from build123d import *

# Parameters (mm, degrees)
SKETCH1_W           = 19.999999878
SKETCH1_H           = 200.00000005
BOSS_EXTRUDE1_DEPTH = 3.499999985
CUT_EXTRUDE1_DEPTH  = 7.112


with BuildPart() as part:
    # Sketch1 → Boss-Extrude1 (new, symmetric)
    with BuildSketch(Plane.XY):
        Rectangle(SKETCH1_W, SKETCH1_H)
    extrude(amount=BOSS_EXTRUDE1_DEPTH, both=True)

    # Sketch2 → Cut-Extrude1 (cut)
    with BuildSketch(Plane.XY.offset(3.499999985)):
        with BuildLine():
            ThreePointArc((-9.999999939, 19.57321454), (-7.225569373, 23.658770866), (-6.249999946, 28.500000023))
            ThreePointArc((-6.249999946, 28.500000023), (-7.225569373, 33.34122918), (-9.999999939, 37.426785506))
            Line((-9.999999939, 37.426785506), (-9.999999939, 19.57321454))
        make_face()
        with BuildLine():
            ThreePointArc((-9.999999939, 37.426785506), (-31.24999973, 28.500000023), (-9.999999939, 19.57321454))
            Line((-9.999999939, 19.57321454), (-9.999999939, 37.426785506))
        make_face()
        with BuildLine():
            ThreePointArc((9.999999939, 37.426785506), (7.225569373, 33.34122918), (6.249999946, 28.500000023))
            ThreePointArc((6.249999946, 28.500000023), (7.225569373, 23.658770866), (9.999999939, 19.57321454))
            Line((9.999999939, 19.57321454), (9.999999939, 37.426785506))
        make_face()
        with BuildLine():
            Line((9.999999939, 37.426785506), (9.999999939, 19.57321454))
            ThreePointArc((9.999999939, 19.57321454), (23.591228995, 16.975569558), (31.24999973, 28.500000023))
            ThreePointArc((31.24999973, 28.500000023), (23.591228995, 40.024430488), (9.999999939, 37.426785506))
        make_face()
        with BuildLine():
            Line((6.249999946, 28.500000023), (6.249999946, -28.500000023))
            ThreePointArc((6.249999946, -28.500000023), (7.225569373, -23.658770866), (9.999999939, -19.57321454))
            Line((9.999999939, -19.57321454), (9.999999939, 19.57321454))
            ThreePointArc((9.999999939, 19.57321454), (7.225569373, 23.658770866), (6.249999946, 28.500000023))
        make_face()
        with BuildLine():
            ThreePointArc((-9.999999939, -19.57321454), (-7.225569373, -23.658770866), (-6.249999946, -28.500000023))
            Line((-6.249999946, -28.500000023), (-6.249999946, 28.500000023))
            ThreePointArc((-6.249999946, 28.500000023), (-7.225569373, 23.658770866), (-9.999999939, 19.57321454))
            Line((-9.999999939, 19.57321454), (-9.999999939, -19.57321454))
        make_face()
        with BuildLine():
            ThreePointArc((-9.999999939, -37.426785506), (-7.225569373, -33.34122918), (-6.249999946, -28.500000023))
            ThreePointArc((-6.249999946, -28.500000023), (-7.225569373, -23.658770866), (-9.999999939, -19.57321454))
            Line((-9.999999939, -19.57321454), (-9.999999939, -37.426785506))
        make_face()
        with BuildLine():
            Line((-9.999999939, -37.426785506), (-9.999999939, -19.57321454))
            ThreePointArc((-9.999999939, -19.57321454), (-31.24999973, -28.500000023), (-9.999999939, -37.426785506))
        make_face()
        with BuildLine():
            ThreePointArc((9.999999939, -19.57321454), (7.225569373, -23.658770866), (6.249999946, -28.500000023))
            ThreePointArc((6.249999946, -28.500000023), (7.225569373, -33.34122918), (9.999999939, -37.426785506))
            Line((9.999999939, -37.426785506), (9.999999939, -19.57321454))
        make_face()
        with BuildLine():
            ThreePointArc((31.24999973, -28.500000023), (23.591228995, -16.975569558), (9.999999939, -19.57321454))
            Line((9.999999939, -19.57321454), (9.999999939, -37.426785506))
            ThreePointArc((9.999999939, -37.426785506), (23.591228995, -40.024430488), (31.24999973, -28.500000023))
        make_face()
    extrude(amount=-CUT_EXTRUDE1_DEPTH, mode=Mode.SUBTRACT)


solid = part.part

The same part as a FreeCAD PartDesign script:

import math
import FreeCAD as App
import Part
import Sketcher
Q = App.Units.Quantity

doc = App.newDocument("Part")
params = doc.addObject("Spreadsheet::Sheet", "Params")
for row, (alias, value) in enumerate([
    ("sketch1_width", "20 mm"),
    ("sketch1_height", "200 mm"),
    ("pad1_length", "7 mm"),
    ("sketch2_radius", "12.5 mm"),
    ("sketch2_height", "57 mm"),
    ("pocket1_length", "7.112 mm"),
], start=1):
    params.set(f"A{row}", alias)
    params.set(f"B{row}", "=" + value)
    params.setAlias(f"B{row}", alias)

body = doc.addObject("PartDesign::Body", "Body")

sketch1 = body.newObject("Sketcher::SketchObject", "Sketch")
sketch1.AttachmentSupport = (doc.getObject("XY_Plane"), [""])
sketch1.MapMode = "FlatFace"
sketch1.addGeometry(Part.LineSegment(App.Vector(-10, 100, 0), App.Vector(-10, -100, 0)), False)
sketch1.addGeometry(Part.LineSegment(App.Vector(-10, -100, 0), App.Vector(10, -100, 0)), False)
sketch1.addGeometry(Part.LineSegment(App.Vector(10, -100, 0), App.Vector(10, 100, 0)), False)
sketch1.addGeometry(Part.LineSegment(App.Vector(10, 100, 0), App.Vector(-10, 100, 0)), False)
sketch1.addConstraint(Sketcher.Constraint("Coincident", 0, 2, 1, 1))
sketch1.addConstraint(Sketcher.Constraint("Coincident", 1, 2, 2, 1))
sketch1.addConstraint(Sketcher.Constraint("Coincident", 2, 2, 3, 1))
sketch1.addConstraint(Sketcher.Constraint("Coincident", 3, 2, 0, 1))
sketch1.addConstraint(Sketcher.Constraint("Vertical", 0))
sketch1.addConstraint(Sketcher.Constraint("Horizontal", 1))
sketch1.addConstraint(Sketcher.Constraint("Vertical", 2))
sketch1.addConstraint(Sketcher.Constraint("Horizontal", 3))
sketch1.addConstraint(Sketcher.Constraint("Symmetric", 0, 2, 2, 2, -1, 1))
sketch1.addConstraint(Sketcher.Constraint("DistanceX", 1, 1, 1, 2, Q("20 mm")))
sketch1.addConstraint(Sketcher.Constraint("DistanceY", 0, 2, 0, 1, Q("200 mm")))
sketch1.setExpression("Constraints[9]", "Params.sketch1_width")
sketch1.setExpression("Constraints[10]", "Params.sketch1_height")
pad1 = body.newObject("PartDesign::Pad", "Pad")
pad1.Profile = sketch1
pad1.setExpression("Length", "Params.pad1_length")
pad1.Midplane = True

sketch2 = body.newObject("Sketcher::SketchObject", "Sketch001")
sketch2.AttachmentSupport = (doc.getObject("XY_Plane"), [""])
sketch2.MapMode = "FlatFace"
sketch2.AttachmentOffset = App.Placement(App.Vector(0, 0, 3.5), App.Rotation())
sketch2.addGeometry(Part.ArcOfCircle(Part.Circle(App.Vector(-19, 29, 0), App.Vector(0, 0, 1), 12), math.radians(0), math.radians(46)), False)
sketch2.addGeometry(Part.ArcOfCircle(Part.Circle(App.Vector(-19, 29, 0), App.Vector(0, 0, 1), 12), math.radians(46), math.radians(314)), False)
sketch2.addGeometry(Part.LineSegment(App.Vector(-10, 20, 0), App.Vector(-10, -20, 0)), False)
sketch2.addGeometry(Part.ArcOfCircle(Part.Circle(App.Vector(-19, -29, 0), App.Vector(0, 0, 1), 12), math.radians(46), math.radians(314)), False)
sketch2.addGeometry(Part.ArcOfCircle(Part.Circle(App.Vector(-19, -29, 0), App.Vector(0, 0, 1), 12), math.radians(-46), math.radians(0)), False)
sketch2.addGeometry(Part.LineSegment(App.Vector(-6, -29, 0), App.Vector(-6, 29, 0)), False)
sketch2.addGeometry(Part.ArcOfCircle(Part.Circle(App.Vector(19, 29, 0), App.Vector(0, 0, 1), 12), math.radians(134), math.radians(180)), False)
sketch2.addGeometry(Part.LineSegment(App.Vector(6, 29, 0), App.Vector(6, -29, 0)), False)
sketch2.addGeometry(Part.ArcOfCircle(Part.Circle(App.Vector(19, -29, 0), App.Vector(0, 0, 1), 12), math.radians(-180), math.radians(-134)), False)
sketch2.addGeometry(Part.ArcOfCircle(Part.Circle(App.Vector(19, -29, 0), App.Vector(0, 0, 1), 12), math.radians(-134), math.radians(0)), False)
sketch2.addGeometry(Part.ArcOfCircle(Part.Circle(App.Vector(19, -29, 0), App.Vector(0, 0, 1), 12), math.radians(0), math.radians(134)), False)
sketch2.addGeometry(Part.LineSegment(App.Vector(10, -20, 0), App.Vector(10, 20, 0)), False)
sketch2.addGeometry(Part.ArcOfCircle(Part.Circle(App.Vector(19, 29, 0), App.Vector(0, 0, 1), 12), math.radians(-134), math.radians(0)), False)
sketch2.addGeometry(Part.ArcOfCircle(Part.Circle(App.Vector(19, 29, 0), App.Vector(0, 0, 1), 12), math.radians(0), math.radians(134)), False)
sketch2.addConstraint(Sketcher.Constraint("Tangent", 0, 2, 1, 1))
sketch2.addConstraint(Sketcher.Constraint("Coincident", 1, 2, 2, 1))
sketch2.addConstraint(Sketcher.Constraint("Coincident", 2, 2, 3, 1))
sketch2.addConstraint(Sketcher.Constraint("Tangent", 3, 2, 4, 1))
sketch2.addConstraint(Sketcher.Constraint("Tangent", 4, 2, 5, 1))
sketch2.addConstraint(Sketcher.Constraint("Tangent", 5, 2, 0, 1))
sketch2.addConstraint(Sketcher.Constraint("Tangent", 6, 2, 7, 1))
sketch2.addConstraint(Sketcher.Constraint("Tangent", 7, 2, 8, 1))
sketch2.addConstraint(Sketcher.Constraint("Tangent", 8, 2, 9, 1))
sketch2.addConstraint(Sketcher.Constraint("Tangent", 9, 2, 10, 1))
sketch2.addConstraint(Sketcher.Constraint("Coincident", 10, 2, 11, 1))
sketch2.addConstraint(Sketcher.Constraint("Coincident", 11, 2, 12, 1))
sketch2.addConstraint(Sketcher.Constraint("Tangent", 12, 2, 13, 1))
sketch2.addConstraint(Sketcher.Constraint("Tangent", 13, 2, 6, 1))
sketch2.addConstraint(Sketcher.Constraint("Vertical", 2))
sketch2.addConstraint(Sketcher.Constraint("Vertical", 5))
sketch2.addConstraint(Sketcher.Constraint("Vertical", 7))
sketch2.addConstraint(Sketcher.Constraint("Vertical", 11))
sketch2.addConstraint(Sketcher.Constraint("Coincident", 10, 3, 8, 3))
sketch2.addConstraint(Sketcher.Constraint("Coincident", 12, 3, 6, 3))
sketch2.addConstraint(Sketcher.Constraint("Equal", 0, 1))
sketch2.addConstraint(Sketcher.Constraint("Equal", 1, 3))
sketch2.addConstraint(Sketcher.Constraint("Equal", 3, 4))
sketch2.addConstraint(Sketcher.Constraint("Equal", 4, 6))
sketch2.addConstraint(Sketcher.Constraint("Equal", 6, 8))
sketch2.addConstraint(Sketcher.Constraint("Symmetric", 3, 3, 6, 3, -1, 1))
sketch2.addConstraint(Sketcher.Constraint("Symmetric", 0, 2, 8, 2, -1, 1))
sketch2.addConstraint(Sketcher.Constraint("Symmetric", 3, 2, 8, 2, -2))
sketch2.addConstraint(Sketcher.Constraint("Horizontal", 7, 2, 9, 2))
sketch2.addConstraint(Sketcher.Constraint("Horizontal", 2, 2, 10, 2))
sketch2.addConstraint(Sketcher.Constraint("Horizontal", 6, 2, 12, 2))
sketch2.addConstraint(Sketcher.Constraint("Horizontal", 0, 2, 13, 2))
sketch2.addConstraint(Sketcher.Constraint("Vertical", 0, 2, 1, 2))
sketch2.addConstraint(Sketcher.Constraint("Radius", 0, Q("12.5 mm")))
sketch2.addConstraint(Sketcher.Constraint("DistanceY", 5, 1, 5, 2, Q("57 mm")))
sketch2.addConstraint(Sketcher.Constraint("DistanceX", 0, 2, -1, 1, Q("10 mm")))
sketch2.addConstraint(Sketcher.Constraint("DistanceX", 4, 2, 9, 3, Q("25 mm")))
sketch2.setExpression("Constraints[33]", "Params.sketch2_radius")
sketch2.setExpression("Constraints[34]", "Params.sketch2_height")
pocket1 = body.newObject("PartDesign::Pocket", "Pocket")
pocket1.Profile = sketch2
pocket1.setExpression("Length", "Params.pocket1_length")

doc.recompute()
